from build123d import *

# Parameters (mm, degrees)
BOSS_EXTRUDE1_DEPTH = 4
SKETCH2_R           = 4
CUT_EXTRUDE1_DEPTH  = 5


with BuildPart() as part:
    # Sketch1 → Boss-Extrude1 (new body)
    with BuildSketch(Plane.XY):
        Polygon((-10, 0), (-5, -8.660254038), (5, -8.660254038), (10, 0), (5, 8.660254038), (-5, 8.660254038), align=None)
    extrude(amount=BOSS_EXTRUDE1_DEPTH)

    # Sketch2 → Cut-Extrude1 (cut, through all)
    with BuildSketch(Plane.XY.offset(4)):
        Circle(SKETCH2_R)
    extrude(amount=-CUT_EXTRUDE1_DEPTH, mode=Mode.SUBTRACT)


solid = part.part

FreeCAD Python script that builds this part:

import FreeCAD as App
import Part
import Sketcher
from FreeCAD import Vector
Q = App.Units.Quantity

doc = App.newDocument("Part")
body = doc.addObject("PartDesign::Body", "Body")

# Sketch on XY plane
sketch1 = body.newObject("Sketcher::SketchObject", "Sketch")
sketch1.AttachmentSupport = (doc.getObject("XY_Plane"), [""])
sketch1.MapMode = "FlatFace"
sketch1.addGeometry(Part.LineSegment(Vector(-10, 0, 0), Vector(-5, -8.660254, 0)), False)
sketch1.addGeometry(Part.LineSegment(Vector(-5, -8.660254, 0), Vector(5, -8.660254, 0)), False)
sketch1.addGeometry(Part.LineSegment(Vector(5, -8.660254, 0), Vector(10, 0, 0)), False)
sketch1.addGeometry(Part.LineSegment(Vector(10, 0, 0), Vector(5, 8.660254, 0)), False)
sketch1.addGeometry(Part.LineSegment(Vector(5, 8.660254, 0), Vector(-5, 8.660254, 0)), False)
sketch1.addGeometry(Part.LineSegment(Vector(-5, 8.660254, 0), Vector(-10, 0, 0)), False)
sketch1.addConstraint(Sketcher.Constraint("Coincident", 0, 2, 1, 1))
sketch1.addConstraint(Sketcher.Constraint("Coincident", 1, 2, 2, 1))
sketch1.addConstraint(Sketcher.Constraint("Coincident", 2, 2, 3, 1))
sketch1.addConstraint(Sketcher.Constraint("Coincident", 3, 2, 4, 1))
sketch1.addConstraint(Sketcher.Constraint("Coincident", 4, 2, 5, 1))
sketch1.addConstraint(Sketcher.Constraint("Coincident", 5, 2, 0, 1))
sketch1.addConstraint(Sketcher.Constraint("Horizontal", 1))
sketch1.addConstraint(Sketcher.Constraint("Horizontal", 4))
sketch1.addConstraint(Sketcher.Constraint("Symmetric", 0, 2, 3, 2, -1, 1))
sketch1.addConstraint(Sketcher.Constraint("Symmetric", 2, 2, 5, 2, -1, 1))
sketch1.addConstraint(Sketcher.Constraint("PointOnObject", 2, 2, -1))
sketch1.addConstraint(Sketcher.Constraint("Parallel", 2, 5))
sketch1.addConstraint(Sketcher.Constraint("Vertical", 1, 2, 3, 2))
sketch1.addConstraint(Sketcher.Constraint("DistanceX", 1, 1, 1, 2, 10.0))
sketch1.addConstraint(Sketcher.Constraint("Angle", 0, Q("-60 deg")))
sketch1.addConstraint(Sketcher.Constraint("Distance", 0, 10.0))
pad1 = body.newObject("PartDesign::Pad", "Pad")
pad1.Profile = sketch1
pad1.Length = 4

# Sketch on XY plane
sketch2 = body.newObject("Sketcher::SketchObject", "Sketch001")
sketch2.AttachmentSupport = (doc.getObject("XY_Plane"), [""])
sketch2.MapMode = "FlatFace"
sketch2.AttachmentOffset = App.Placement(Vector(0, 0, 4), App.Rotation())
sketch2.addGeometry(Part.Circle(Vector(0, 0, 0), Vector(0, 0, 1), 4), False)
sketch2.addConstraint(Sketcher.Constraint("Coincident", 0, 3, -1, 1))
sketch2.addConstraint(Sketcher.Constraint("Diameter", 0, 8.0))
pocket1 = body.newObject("PartDesign::Pocket", "Pocket")
pocket1.Profile = sketch2
pocket1.Type = "ThroughAll"

doc.recompute()
